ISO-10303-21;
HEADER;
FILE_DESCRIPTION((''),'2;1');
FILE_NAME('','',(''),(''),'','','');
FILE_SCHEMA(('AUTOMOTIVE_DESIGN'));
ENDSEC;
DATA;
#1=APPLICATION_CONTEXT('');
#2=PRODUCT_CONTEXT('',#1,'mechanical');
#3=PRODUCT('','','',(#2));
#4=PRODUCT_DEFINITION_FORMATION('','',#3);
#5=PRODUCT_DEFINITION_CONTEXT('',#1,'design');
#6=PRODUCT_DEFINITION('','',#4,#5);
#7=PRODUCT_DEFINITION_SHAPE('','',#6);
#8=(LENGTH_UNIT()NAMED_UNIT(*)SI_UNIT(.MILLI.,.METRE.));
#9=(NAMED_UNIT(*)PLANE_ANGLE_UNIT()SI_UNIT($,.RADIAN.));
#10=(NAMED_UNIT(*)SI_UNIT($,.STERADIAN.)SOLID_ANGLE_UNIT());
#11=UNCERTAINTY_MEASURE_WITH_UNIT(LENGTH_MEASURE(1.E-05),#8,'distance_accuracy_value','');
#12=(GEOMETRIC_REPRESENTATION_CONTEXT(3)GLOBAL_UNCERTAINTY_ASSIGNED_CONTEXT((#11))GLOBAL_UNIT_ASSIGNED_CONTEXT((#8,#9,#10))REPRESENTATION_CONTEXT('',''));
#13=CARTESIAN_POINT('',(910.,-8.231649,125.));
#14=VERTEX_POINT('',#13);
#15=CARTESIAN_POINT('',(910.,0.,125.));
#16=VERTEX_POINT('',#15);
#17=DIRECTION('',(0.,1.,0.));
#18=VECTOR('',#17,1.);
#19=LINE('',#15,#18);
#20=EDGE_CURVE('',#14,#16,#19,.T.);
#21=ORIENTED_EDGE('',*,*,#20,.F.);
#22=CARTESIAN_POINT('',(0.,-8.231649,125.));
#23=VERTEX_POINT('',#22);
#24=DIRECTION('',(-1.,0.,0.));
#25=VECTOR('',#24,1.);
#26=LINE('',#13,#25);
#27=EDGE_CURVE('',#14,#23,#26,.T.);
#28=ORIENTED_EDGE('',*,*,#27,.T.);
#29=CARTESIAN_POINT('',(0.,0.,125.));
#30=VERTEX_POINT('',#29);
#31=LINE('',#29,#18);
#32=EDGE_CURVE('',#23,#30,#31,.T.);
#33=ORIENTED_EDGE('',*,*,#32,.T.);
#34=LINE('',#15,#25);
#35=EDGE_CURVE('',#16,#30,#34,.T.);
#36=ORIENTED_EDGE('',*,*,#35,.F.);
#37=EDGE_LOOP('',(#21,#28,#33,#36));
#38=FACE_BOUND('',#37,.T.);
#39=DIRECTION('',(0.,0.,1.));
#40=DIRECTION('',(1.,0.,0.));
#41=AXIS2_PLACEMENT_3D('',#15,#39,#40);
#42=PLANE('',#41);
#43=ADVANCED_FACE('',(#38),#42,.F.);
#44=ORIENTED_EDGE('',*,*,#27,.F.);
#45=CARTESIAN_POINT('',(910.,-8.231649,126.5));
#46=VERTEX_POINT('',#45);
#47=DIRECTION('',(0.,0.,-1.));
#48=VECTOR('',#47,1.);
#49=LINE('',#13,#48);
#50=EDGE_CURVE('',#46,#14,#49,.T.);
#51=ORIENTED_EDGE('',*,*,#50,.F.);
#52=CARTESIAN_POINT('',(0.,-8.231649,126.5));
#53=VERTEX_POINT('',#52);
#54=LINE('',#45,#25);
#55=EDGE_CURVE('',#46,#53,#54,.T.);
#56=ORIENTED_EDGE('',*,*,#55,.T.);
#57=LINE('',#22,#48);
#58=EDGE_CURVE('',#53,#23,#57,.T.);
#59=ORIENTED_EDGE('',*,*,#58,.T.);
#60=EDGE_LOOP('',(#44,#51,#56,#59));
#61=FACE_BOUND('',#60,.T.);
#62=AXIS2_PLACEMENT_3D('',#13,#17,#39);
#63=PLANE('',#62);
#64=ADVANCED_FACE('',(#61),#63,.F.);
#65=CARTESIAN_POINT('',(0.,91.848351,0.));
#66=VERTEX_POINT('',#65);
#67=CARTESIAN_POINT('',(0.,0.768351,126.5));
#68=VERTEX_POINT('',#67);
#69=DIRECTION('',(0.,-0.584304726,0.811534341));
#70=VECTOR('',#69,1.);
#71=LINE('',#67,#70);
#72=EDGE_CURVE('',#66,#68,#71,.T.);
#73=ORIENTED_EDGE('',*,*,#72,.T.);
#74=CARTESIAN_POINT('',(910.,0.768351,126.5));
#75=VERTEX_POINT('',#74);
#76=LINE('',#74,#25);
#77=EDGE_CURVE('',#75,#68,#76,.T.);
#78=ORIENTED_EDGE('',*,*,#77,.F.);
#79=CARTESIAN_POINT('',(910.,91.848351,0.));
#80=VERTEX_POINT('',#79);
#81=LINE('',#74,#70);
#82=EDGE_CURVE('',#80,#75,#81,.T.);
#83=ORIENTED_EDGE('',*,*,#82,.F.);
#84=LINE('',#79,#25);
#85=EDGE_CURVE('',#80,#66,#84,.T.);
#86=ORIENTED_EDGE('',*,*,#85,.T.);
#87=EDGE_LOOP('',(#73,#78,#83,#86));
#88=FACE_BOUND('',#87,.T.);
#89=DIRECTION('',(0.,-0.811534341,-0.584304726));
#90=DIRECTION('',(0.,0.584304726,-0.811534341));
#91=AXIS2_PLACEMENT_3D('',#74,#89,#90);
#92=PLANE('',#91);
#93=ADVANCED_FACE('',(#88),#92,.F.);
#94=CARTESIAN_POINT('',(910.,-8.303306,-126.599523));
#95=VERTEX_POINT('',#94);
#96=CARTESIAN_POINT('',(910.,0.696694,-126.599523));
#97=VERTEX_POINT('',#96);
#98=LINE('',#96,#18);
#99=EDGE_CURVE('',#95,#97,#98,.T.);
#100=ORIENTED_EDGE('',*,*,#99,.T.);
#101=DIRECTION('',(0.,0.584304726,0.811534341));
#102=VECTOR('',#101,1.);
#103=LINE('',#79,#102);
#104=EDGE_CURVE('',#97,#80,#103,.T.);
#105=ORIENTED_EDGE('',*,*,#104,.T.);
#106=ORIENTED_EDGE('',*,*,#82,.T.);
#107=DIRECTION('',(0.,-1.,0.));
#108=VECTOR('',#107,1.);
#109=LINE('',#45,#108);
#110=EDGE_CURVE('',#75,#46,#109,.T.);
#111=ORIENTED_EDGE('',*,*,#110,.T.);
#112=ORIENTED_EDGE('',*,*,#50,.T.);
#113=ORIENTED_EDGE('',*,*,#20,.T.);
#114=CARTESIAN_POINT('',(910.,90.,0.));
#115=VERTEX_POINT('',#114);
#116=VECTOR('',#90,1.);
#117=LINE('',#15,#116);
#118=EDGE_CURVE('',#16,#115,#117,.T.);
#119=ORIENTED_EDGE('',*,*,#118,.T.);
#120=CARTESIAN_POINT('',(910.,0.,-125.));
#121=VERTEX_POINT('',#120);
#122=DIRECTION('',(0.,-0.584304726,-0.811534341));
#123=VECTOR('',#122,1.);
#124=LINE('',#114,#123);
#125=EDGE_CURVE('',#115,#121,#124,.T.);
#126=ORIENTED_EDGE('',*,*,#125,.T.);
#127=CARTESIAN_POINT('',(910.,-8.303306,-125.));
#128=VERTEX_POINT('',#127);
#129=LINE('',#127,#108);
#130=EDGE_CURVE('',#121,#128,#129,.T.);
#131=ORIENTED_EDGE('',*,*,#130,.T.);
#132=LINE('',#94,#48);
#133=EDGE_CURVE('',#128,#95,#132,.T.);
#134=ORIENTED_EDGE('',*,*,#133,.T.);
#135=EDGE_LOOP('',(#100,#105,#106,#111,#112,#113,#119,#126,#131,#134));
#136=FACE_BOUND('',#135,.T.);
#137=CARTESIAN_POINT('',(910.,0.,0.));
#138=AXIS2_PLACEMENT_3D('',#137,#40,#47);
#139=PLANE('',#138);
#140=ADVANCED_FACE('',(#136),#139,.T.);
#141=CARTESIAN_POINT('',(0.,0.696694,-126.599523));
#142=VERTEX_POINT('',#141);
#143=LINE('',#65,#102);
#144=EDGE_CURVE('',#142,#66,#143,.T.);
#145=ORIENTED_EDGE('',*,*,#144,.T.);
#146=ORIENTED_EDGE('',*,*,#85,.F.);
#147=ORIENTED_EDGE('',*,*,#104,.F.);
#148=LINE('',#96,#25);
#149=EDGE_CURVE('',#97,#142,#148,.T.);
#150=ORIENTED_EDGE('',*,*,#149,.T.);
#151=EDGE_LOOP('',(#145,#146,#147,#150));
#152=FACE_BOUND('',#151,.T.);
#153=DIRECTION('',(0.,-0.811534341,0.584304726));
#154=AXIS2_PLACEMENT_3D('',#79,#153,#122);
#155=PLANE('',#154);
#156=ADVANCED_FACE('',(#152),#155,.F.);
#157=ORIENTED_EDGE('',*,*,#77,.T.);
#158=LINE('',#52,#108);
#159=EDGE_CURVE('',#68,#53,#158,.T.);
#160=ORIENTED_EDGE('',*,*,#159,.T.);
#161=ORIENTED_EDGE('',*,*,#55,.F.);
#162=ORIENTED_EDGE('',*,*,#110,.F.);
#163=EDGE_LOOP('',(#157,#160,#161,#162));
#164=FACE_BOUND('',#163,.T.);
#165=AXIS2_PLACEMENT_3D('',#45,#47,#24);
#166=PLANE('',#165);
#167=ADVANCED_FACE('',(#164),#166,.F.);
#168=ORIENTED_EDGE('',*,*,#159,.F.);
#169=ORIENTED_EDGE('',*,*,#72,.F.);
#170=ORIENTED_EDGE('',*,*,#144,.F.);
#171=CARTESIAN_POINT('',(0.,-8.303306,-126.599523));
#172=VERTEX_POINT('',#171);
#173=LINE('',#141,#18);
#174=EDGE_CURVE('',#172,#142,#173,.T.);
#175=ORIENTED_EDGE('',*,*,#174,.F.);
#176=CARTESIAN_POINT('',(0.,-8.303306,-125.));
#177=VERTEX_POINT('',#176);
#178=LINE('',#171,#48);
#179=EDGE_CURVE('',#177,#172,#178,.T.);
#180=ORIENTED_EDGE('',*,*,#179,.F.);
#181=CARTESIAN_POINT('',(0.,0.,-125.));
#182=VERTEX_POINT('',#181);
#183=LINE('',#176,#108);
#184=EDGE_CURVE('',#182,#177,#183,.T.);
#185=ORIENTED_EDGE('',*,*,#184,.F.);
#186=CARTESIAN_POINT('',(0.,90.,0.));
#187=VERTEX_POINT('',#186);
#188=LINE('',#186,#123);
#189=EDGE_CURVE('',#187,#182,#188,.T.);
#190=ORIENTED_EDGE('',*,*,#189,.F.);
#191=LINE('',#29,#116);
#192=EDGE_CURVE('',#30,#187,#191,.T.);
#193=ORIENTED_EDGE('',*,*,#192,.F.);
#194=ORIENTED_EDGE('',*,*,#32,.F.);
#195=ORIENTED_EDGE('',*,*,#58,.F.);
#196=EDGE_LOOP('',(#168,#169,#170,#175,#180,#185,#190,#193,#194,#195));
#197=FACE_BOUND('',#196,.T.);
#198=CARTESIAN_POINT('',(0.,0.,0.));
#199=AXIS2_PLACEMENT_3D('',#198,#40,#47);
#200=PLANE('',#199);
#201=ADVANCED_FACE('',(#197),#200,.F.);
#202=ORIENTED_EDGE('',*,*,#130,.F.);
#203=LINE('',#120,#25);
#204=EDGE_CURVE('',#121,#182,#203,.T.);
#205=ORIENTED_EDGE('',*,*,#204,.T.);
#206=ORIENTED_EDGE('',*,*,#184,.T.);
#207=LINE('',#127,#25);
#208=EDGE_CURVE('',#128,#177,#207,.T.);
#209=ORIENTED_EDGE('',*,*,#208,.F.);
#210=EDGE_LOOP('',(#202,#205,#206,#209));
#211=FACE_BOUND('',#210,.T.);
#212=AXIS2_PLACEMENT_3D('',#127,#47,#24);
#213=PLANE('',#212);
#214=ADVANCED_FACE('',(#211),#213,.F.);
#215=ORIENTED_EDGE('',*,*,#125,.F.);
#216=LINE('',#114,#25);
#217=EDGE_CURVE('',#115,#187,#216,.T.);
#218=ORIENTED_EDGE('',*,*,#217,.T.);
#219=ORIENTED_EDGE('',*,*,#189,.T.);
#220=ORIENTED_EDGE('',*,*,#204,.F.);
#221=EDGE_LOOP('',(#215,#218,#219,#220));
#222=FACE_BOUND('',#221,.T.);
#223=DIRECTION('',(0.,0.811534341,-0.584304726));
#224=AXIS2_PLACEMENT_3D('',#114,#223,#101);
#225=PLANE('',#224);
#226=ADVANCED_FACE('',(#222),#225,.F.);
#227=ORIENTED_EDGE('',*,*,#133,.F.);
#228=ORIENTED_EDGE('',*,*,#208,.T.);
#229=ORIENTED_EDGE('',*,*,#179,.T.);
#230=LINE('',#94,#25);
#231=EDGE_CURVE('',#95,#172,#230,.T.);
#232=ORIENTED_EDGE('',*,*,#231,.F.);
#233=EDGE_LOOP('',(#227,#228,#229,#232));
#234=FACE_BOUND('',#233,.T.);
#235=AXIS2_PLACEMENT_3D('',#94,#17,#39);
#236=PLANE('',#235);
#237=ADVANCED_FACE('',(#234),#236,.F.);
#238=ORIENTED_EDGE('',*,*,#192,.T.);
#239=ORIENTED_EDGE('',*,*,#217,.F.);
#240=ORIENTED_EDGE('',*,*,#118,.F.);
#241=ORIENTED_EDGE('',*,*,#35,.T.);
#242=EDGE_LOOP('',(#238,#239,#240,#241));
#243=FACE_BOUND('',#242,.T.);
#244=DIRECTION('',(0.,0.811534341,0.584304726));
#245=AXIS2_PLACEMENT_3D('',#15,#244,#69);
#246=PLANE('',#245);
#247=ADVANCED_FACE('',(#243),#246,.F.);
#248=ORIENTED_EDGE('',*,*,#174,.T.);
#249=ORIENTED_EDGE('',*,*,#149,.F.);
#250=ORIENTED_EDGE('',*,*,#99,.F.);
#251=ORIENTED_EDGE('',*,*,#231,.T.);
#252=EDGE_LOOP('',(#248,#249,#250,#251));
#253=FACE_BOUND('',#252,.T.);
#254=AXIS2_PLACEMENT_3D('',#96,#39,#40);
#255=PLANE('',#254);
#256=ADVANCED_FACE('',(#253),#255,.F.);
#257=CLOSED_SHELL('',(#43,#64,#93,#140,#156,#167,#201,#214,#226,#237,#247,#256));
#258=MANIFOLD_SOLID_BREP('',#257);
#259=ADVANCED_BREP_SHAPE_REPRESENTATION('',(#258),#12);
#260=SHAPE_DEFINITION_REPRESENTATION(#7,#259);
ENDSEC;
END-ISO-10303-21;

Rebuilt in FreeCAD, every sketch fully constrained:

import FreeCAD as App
import Part
import Sketcher
Q = App.Units.Quantity

doc = App.newDocument("Part")
body = doc.addObject("PartDesign::Body", "Body")

# Sketch on YZ plane
sketch1 = body.newObject("Sketcher::SketchObject", "Sketch")
sketch1.AttachmentSupport = (doc.getObject("YZ_Plane"), [""])
sketch1.MapMode = "FlatFace"
sketch1.addGeometry(Part.LineSegment(App.Vector(0, 125, 0), App.Vector(90, 0, 0)), False)
sketch1.addGeometry(Part.LineSegment(App.Vector(90, 0, 0), App.Vector(0, -125, 0)), False)
sketch1.addGeometry(Part.LineSegment(App.Vector(0, -125, 0), App.Vector(-8.3, -125, 0)), False)
sketch1.addGeometry(Part.LineSegment(App.Vector(-8.3, -125, 0), App.Vector(-8.3, -126.6, 0)), False)
sketch1.addGeometry(Part.LineSegment(App.Vector(-8.3, -126.6, 0), App.Vector(0.7, -126.6, 0)), False)
sketch1.addGeometry(Part.LineSegment(App.Vector(0.7, -126.6, 0), App.Vector(91.8, 0, 0)), False)
sketch1.addGeometry(Part.LineSegment(App.Vector(91.8, 0, 0), App.Vector(0.8, 126.5, 0)), False)
sketch1.addGeometry(Part.LineSegment(App.Vector(0.8, 126.5, 0), App.Vector(-8.2, 126.5, 0)), False)
sketch1.addGeometry(Part.LineSegment(App.Vector(-8.2, 126.5, 0), App.Vector(-8.2, 125, 0)), False)
sketch1.addGeometry(Part.LineSegment(App.Vector(-8.2, 125, 0), App.Vector(0, 125, 0)), False)
sketch1.addConstraint(Sketcher.Constraint("Coincident", 0, 2, 1, 1))
sketch1.addConstraint(Sketcher.Constraint("Coincident", 1, 2, 2, 1))
sketch1.addConstraint(Sketcher.Constraint("Coincident", 2, 2, 3, 1))
sketch1.addConstraint(Sketcher.Constraint("Coincident", 3, 2, 4, 1))
sketch1.addConstraint(Sketcher.Constraint("Coincident", 4, 2, 5, 1))
sketch1.addConstraint(Sketcher.Constraint("Coincident", 5, 2, 6, 1))
sketch1.addConstraint(Sketcher.Constraint("Coincident", 6, 2, 7, 1))
sketch1.addConstraint(Sketcher.Constraint("Coincident", 7, 2, 8, 1))
sketch1.addConstraint(Sketcher.Constraint("Coincident", 8, 2, 9, 1))
sketch1.addConstraint(Sketcher.Constraint("Coincident", 9, 2, 0, 1))
sketch1.addConstraint(Sketcher.Constraint("Horizontal", 2))
sketch1.addConstraint(Sketcher.Constraint("Vertical", 3))
sketch1.addConstraint(Sketcher.Constraint("Horizontal", 4))
sketch1.addConstraint(Sketcher.Constraint("Horizontal", 7))
sketch1.addConstraint(Sketcher.Constraint("Vertical", 8))
sketch1.addConstraint(Sketcher.Constraint("Horizontal", 9))
sketch1.addConstraint(Sketcher.Constraint("Symmetric", 1, 2, 9, 2, -1, 1))
sketch1.addConstraint(Sketcher.Constraint("PointOnObject", 0, 2, -1))
sketch1.addConstraint(Sketcher.Constraint("PointOnObject", 1, 2, -2))
sketch1.addConstraint(Sketcher.Constraint("PointOnObject", 5, 2, -1))
sketch1.addConstraint(Sketcher.Constraint("Parallel", 1, 5))
sketch1.addConstraint(Sketcher.Constraint("Parallel", 0, 6))
sketch1.addConstraint(Sketcher.Constraint("Equal", 4, 7))
sketch1.addConstraint(Sketcher.Constraint("DistanceX", 4, 1, 4, 2, Q("9 mm")))
sketch1.addConstraint(Sketcher.Constraint("DistanceY", 8, 2, 8, 1, Q("1.5 mm")))
sketch1.addConstraint(Sketcher.Constraint("DistanceX", -1, 1, 0, 2, Q("90 mm")))
sketch1.addConstraint(Sketcher.Constraint("DistanceY", 1, 2, -1, 1, Q("125 mm")))
sketch1.addConstraint(Sketcher.Constraint("DistanceX", 9, 1, 9, 2, Q("8.231649 mm")))
sketch1.addConstraint(Sketcher.Constraint("DistanceX", 2, 2, 2, 1, Q("8.303306 mm")))
pad1 = body.newObject("PartDesign::Pad", "Pad")
pad1.Profile = sketch1
pad1.Length = 910

doc.recompute()
